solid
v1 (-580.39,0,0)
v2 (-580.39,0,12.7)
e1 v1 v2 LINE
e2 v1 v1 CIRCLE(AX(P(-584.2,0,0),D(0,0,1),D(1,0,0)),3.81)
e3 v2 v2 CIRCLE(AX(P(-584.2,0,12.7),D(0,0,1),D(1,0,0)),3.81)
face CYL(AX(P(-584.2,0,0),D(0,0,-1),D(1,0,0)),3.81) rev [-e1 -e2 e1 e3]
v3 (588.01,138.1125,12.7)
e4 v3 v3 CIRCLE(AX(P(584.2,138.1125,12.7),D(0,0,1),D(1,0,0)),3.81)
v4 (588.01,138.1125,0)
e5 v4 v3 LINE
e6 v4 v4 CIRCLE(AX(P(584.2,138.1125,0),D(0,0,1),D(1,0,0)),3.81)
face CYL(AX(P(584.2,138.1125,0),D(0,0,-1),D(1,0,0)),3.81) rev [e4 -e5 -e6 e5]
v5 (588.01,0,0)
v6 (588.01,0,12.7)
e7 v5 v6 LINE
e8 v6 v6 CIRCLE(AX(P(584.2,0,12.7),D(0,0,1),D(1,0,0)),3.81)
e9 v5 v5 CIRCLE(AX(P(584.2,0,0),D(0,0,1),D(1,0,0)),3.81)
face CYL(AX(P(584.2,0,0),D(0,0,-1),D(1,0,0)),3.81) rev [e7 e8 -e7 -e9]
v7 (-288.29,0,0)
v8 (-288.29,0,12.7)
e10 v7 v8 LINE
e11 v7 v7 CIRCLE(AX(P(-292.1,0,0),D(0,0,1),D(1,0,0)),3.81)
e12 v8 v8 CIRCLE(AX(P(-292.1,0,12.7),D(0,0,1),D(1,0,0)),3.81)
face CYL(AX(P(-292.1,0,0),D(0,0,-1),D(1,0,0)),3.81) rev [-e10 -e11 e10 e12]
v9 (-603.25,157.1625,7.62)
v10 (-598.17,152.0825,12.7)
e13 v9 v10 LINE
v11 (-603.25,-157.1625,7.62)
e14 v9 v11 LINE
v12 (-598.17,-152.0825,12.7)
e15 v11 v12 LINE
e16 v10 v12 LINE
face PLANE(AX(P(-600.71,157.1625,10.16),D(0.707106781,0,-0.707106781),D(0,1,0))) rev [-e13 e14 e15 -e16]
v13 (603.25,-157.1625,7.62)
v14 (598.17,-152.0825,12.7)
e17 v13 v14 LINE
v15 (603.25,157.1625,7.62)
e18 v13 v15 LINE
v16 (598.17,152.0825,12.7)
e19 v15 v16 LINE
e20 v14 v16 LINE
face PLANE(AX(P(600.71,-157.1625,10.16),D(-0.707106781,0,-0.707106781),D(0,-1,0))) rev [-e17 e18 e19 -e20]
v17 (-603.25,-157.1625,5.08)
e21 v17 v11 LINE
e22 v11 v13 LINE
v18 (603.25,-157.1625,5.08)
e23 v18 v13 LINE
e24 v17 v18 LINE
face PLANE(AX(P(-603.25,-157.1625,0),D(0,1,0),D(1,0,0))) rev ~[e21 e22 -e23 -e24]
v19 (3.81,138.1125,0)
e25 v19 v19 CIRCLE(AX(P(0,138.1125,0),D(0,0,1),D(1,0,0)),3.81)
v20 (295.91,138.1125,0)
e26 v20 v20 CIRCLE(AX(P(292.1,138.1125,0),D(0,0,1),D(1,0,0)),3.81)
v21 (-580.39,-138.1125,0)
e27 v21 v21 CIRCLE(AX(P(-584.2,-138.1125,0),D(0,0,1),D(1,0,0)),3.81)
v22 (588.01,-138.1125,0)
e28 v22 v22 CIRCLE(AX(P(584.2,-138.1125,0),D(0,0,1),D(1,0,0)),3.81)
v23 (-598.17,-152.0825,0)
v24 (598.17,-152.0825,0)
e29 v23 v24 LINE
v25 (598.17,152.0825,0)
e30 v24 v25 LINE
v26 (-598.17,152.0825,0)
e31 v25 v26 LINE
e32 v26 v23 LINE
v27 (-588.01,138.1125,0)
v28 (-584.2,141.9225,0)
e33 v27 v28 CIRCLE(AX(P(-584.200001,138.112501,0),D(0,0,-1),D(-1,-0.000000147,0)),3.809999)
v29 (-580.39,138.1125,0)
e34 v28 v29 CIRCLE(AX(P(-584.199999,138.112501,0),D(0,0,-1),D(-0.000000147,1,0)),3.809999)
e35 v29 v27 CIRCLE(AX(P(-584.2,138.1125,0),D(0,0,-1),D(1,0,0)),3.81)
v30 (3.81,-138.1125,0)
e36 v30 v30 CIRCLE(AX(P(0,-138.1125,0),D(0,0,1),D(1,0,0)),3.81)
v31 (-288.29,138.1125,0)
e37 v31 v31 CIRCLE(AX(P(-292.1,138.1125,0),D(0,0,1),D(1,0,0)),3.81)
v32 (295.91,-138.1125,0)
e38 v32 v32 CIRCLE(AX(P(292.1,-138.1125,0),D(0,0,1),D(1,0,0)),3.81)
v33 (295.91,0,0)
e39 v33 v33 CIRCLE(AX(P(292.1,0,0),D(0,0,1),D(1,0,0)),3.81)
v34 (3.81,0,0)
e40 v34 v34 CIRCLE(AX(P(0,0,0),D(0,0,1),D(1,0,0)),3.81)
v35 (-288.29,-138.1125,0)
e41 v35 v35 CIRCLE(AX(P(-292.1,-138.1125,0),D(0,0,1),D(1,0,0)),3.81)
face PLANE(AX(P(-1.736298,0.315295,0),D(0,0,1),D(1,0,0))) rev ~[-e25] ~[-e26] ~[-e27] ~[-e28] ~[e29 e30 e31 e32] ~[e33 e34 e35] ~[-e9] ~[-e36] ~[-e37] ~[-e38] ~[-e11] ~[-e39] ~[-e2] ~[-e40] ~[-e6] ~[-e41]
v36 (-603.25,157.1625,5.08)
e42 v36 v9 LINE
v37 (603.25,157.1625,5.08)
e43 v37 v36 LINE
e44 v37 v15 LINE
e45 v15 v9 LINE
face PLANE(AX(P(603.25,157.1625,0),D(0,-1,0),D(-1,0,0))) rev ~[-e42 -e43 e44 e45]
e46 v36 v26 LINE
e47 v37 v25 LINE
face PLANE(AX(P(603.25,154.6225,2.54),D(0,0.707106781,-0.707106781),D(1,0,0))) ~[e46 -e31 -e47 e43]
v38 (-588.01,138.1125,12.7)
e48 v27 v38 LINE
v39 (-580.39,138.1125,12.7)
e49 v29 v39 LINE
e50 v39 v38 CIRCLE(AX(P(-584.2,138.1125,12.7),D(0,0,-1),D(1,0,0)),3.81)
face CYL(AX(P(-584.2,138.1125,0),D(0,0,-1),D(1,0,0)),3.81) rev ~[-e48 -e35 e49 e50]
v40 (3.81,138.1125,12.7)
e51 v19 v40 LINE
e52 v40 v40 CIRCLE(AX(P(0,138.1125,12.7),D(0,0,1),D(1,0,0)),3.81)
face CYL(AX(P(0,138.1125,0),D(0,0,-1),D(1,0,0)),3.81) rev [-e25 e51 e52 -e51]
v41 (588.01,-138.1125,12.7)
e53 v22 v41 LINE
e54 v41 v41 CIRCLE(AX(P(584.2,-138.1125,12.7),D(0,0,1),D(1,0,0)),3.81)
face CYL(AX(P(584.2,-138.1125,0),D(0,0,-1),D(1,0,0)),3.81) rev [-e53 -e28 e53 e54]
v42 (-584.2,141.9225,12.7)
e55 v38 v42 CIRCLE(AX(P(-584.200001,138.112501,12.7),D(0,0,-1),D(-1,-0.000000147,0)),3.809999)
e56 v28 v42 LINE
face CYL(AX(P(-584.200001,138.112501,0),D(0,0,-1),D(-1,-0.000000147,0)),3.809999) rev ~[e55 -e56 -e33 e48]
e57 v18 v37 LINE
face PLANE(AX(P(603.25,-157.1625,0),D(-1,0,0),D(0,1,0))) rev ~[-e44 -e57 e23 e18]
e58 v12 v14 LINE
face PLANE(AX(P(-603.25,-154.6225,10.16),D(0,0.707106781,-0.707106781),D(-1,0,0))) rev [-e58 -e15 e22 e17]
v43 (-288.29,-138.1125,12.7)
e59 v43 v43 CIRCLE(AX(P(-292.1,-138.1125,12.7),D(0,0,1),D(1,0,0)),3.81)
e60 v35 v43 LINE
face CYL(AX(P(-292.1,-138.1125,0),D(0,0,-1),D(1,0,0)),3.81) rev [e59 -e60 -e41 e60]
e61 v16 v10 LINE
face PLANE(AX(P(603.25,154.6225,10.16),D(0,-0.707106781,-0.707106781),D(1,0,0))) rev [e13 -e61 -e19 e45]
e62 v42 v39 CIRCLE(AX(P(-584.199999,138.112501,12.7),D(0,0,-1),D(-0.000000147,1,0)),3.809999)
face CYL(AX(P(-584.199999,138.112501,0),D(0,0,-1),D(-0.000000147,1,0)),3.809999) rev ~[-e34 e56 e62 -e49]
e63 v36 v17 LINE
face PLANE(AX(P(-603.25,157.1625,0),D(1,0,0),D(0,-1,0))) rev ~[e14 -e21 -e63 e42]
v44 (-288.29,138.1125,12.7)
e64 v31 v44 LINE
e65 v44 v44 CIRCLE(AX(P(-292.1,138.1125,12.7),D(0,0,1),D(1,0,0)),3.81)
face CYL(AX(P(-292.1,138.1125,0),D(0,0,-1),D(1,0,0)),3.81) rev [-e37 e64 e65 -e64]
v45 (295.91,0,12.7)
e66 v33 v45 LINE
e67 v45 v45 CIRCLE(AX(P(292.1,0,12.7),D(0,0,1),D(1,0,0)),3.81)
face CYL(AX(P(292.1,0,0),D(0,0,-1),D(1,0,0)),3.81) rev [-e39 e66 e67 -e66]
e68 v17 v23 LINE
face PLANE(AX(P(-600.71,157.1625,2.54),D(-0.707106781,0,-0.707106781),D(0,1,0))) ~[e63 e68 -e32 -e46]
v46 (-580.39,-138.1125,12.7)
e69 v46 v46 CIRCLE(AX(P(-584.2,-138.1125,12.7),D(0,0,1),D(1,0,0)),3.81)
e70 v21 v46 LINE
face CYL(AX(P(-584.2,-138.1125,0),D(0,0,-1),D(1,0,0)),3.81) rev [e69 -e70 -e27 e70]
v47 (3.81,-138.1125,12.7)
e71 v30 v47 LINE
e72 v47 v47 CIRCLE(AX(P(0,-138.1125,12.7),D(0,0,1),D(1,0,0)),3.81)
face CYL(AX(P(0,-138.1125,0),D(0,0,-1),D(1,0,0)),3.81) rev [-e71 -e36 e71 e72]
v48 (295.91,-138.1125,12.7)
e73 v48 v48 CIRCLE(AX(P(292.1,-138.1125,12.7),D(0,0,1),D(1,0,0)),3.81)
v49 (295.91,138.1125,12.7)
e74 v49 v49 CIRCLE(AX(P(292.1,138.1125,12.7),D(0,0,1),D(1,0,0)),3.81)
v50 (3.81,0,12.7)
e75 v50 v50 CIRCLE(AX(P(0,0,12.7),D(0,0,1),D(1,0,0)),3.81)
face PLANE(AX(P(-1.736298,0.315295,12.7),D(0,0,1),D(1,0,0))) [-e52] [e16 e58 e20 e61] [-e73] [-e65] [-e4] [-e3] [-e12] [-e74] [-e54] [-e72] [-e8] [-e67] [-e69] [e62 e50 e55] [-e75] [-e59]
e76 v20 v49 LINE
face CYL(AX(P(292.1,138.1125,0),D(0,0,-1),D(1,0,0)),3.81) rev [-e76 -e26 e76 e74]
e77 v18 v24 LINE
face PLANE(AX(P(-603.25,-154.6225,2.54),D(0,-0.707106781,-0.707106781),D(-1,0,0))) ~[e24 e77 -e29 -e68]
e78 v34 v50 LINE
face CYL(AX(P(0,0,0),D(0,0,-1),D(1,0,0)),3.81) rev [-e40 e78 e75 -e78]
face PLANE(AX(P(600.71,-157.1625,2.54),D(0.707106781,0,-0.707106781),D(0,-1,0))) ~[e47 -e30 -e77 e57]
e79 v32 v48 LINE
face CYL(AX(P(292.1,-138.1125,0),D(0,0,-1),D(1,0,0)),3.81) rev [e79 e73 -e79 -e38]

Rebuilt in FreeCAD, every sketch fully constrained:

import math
import FreeCAD as App
import Part
import Sketcher
Q = App.Units.Quantity


def edges_at(feature, points):
    """Names of the edges that pass closest to the given points."""
    edges = feature.Shape.Edges
    near = lambda p: min(range(len(edges)), key=lambda i: edges[i].distToShape(Part.Vertex(*p))[0])
    return sorted({f"Edge{near(p) + 1}" for p in points})

doc = App.newDocument("Part")
body = doc.addObject("PartDesign::Body", "Body")

# Sketch on XY plane
sketch1 = body.newObject("Sketcher::SketchObject", "Sketch")
sketch1.AttachmentSupport = (doc.getObject("XY_Plane"), [""])
sketch1.MapMode = "FlatFace"
sketch1.addGeometry(Part.LineSegment(App.Vector(603.2, -157.2, 0), App.Vector(603.2, 157.2, 0)), False)
sketch1.addGeometry(Part.LineSegment(App.Vector(603.2, 157.2, 0), App.Vector(-603.2, 157.2, 0)), False)
sketch1.addGeometry(Part.LineSegment(App.Vector(-603.2, 157.2, 0), App.Vector(-603.2, -157.2, 0)), False)
sketch1.addGeometry(Part.LineSegment(App.Vector(-603.2, -157.2, 0), App.Vector(603.2, -157.2, 0)), False)
sketch1.addGeometry(Part.ArcOfCircle(Part.Circle(App.Vector(-584.2, 138.1, 0), App.Vector(0, 0, 1), 3.8), math.radians(0), math.radians(90)), False)
sketch1.addGeometry(Part.ArcOfCircle(Part.Circle(App.Vector(-584.2, 138.1, 0), App.Vector(0, 0, 1), 3.8), math.radians(180), math.radians(360)), False)
sketch1.addGeometry(Part.ArcOfCircle(Part.Circle(App.Vector(-584.2, 138.1, 0), App.Vector(0, 0, 1), 3.8), math.radians(90), math.radians(180)), False)
sketch1.addGeometry(Part.Circle(App.Vector(-584.2, -138.1, 0), App.Vector(0, 0, 1), 3.8), False)
sketch1.addGeometry(Part.Circle(App.Vector(-292.1, -138.1, 0), App.Vector(0, 0, 1), 3.8), False)
sketch1.addGeometry(Part.Circle(App.Vector(0, -138.1, 0), App.Vector(0, 0, 1), 3.8), False)
sketch1.addGeometry(Part.Circle(App.Vector(292.1, -138.1, 0), App.Vector(0, 0, 1), 3.8), False)
sketch1.addGeometry(Part.Circle(App.Vector(584.2, -138.1, 0), App.Vector(0, 0, 1), 3.8), False)
sketch1.addGeometry(Part.Circle(App.Vector(-584.2, 0, 0), App.Vector(0, 0, 1), 3.8), False)
sketch1.addGeometry(Part.Circle(App.Vector(-292.1, 0, 0), App.Vector(0, 0, 1), 3.8), False)
sketch1.addGeometry(Part.Circle(App.Vector(0, 0, 0), App.Vector(0, 0, 1), 3.8), False)
sketch1.addGeometry(Part.Circle(App.Vector(-292.1, 138.1, 0), App.Vector(0, 0, 1), 3.8), False)
sketch1.addGeometry(Part.Circle(App.Vector(0, 138.1, 0), App.Vector(0, 0, 1), 3.8), False)
sketch1.addGeometry(Part.Circle(App.Vector(292.1, 0, 0), App.Vector(0, 0, 1), 3.8), False)
sketch1.addGeometry(Part.Circle(App.Vector(584.2, 0, 0), App.Vector(0, 0, 1), 3.8), False)
sketch1.addGeometry(Part.Circle(App.Vector(292.1, 138.1, 0), App.Vector(0, 0, 1), 3.8), False)
sketch1.addGeometry(Part.Circle(App.Vector(584.2, 138.1, 0), App.Vector(0, 0, 1), 3.8), False)
sketch1.addConstraint(Sketcher.Constraint("Coincident", 0, 2, 1, 1))
sketch1.addConstraint(Sketcher.Constraint("Coincident", 1, 2, 2, 1))
sketch1.addConstraint(Sketcher.Constraint("Coincident", 2, 2, 3, 1))
sketch1.addConstraint(Sketcher.Constraint("Coincident", 3, 2, 0, 1))
sketch1.addConstraint(Sketcher.Constraint("Tangent", 4, 1, 5, 2))
sketch1.addConstraint(Sketcher.Constraint("Tangent", 5, 1, 6, 2))
sketch1.addConstraint(Sketcher.Constraint("Tangent", 6, 1, 4, 2))
sketch1.addConstraint(Sketcher.Constraint("Vertical", 0))
sketch1.addConstraint(Sketcher.Constraint("Horizontal", 1))
sketch1.addConstraint(Sketcher.Constraint("Vertical", 2))
sketch1.addConstraint(Sketcher.Constraint("Horizontal", 3))
sketch1.addConstraint(Sketcher.Constraint("Coincident", 14, 3, -1, 1))
sketch1.addConstraint(Sketcher.Constraint("Equal", 6, 7))
sketch1.addConstraint(Sketcher.Constraint("Equal", 7, 8))
sketch1.addConstraint(Sketcher.Constraint("Equal", 8, 9))
sketch1.addConstraint(Sketcher.Constraint("Equal", 9, 10))
sketch1.addConstraint(Sketcher.Constraint("Equal", 10, 11))
sketch1.addConstraint(Sketcher.Constraint("Equal", 11, 12))
sketch1.addConstraint(Sketcher.Constraint("Equal", 12, 13))
sketch1.addConstraint(Sketcher.Constraint("Equal", 13, 14))
sketch1.addConstraint(Sketcher.Constraint("Equal", 14, 15))
sketch1.addConstraint(Sketcher.Constraint("Equal", 15, 16))
sketch1.addConstraint(Sketcher.Constraint("Equal", 16, 17))
sketch1.addConstraint(Sketcher.Constraint("Equal", 17, 18))
sketch1.addConstraint(Sketcher.Constraint("Equal", 18, 19))
sketch1.addConstraint(Sketcher.Constraint("Equal", 19, 20))
sketch1.addConstraint(Sketcher.Constraint("Symmetric", 4, 3, 11, 3, -1, 1))
sketch1.addConstraint(Sketcher.Constraint("Symmetric", 10, 3, 15, 3, -1, 1))
sketch1.addConstraint(Sketcher.Constraint("Symmetric", 9, 3, 16, 3, -1, 1))
sketch1.addConstraint(Sketcher.Constraint("Symmetric", 13, 3, 17, 3, -1, 1))
sketch1.addConstraint(Sketcher.Constraint("Symmetric", 12, 3, 18, 3, -1, 1))
sketch1.addConstraint(Sketcher.Constraint("Symmetric", 8, 3, 19, 3, -1, 1))
sketch1.addConstraint(Sketcher.Constraint("Symmetric", 7, 3, 20, 3, -1, 1))
sketch1.addConstraint(Sketcher.Constraint("Symmetric", 0, 2, 2, 2, -1, 1))
sketch1.addConstraint(Sketcher.Constraint("Symmetric", 8, 3, 10, 3, -2))
sketch1.addConstraint(Sketcher.Constraint("Symmetric", 7, 3, 11, 3, -2))
sketch1.addConstraint(Sketcher.Constraint("PointOnObject", 9, 3, -2))
sketch1.addConstraint(Sketcher.Constraint("PointOnObject", 12, 3, -1))
sketch1.addConstraint(Sketcher.Constraint("PointOnObject", 13, 3, -1))
sketch1.addConstraint(Sketcher.Constraint("Horizontal", 7, 3, 8, 3))
sketch1.addConstraint(Sketcher.Constraint("Horizontal", 8, 3, 9, 3))
sketch1.addConstraint(Sketcher.Constraint("Horizontal", 20, 3, 4, 1))
sketch1.addConstraint(Sketcher.Constraint("Horizontal", 4, 1, 5, 1))
sketch1.addConstraint(Sketcher.Constraint("Vertical", 7, 3, 12, 3))
sketch1.addConstraint(Sketcher.Constraint("Vertical", 8, 3, 13, 3))
sketch1.addConstraint(Sketcher.Constraint("Vertical", 12, 3, 6, 1))
sketch1.addConstraint(Sketcher.Constraint("Diameter", 7, Q("0.3 in")))
sketch1.addConstraint(Sketcher.Constraint("DistanceX", 1, 2, 1, 1, Q("47.5 in")))
sketch1.addConstraint(Sketcher.Constraint("DistanceX", 4, 3, -1, 1, Q("23 in")))
sketch1.addConstraint(Sketcher.Constraint("DistanceX", 8, 3, 10, 3, Q("23 in")))
sketch1.addConstraint(Sketcher.Constraint("DistanceY", 0, 1, 0, 2, Q("12.375 in")))
sketch1.addConstraint(Sketcher.Constraint("DistanceY", 20, 3, 0, 2, Q("0.75 in")))
pad1 = body.newObject("PartDesign::Pad", "Pad")
pad1.Profile = sketch1
pad1.Length = Q("0.5 in")
doc.recompute()

chamfer = body.newObject("PartDesign::Chamfer", "Chamfer")
chamfer.Base = (pad1, edges_at(pad1, [
    (0, 157.162, 0),
    (603.25, 0, 0),
    (0, -157.162, 0),
    (-603.25, 0, 0),
    (0, -157.162, 12.7),
    (603.25, 0, 12.7),
    (0, 157.162, 12.7),
    (-603.25, 0, 12.7),
]))
chamfer.Size = Q("0.2 in")

doc.recompute()
